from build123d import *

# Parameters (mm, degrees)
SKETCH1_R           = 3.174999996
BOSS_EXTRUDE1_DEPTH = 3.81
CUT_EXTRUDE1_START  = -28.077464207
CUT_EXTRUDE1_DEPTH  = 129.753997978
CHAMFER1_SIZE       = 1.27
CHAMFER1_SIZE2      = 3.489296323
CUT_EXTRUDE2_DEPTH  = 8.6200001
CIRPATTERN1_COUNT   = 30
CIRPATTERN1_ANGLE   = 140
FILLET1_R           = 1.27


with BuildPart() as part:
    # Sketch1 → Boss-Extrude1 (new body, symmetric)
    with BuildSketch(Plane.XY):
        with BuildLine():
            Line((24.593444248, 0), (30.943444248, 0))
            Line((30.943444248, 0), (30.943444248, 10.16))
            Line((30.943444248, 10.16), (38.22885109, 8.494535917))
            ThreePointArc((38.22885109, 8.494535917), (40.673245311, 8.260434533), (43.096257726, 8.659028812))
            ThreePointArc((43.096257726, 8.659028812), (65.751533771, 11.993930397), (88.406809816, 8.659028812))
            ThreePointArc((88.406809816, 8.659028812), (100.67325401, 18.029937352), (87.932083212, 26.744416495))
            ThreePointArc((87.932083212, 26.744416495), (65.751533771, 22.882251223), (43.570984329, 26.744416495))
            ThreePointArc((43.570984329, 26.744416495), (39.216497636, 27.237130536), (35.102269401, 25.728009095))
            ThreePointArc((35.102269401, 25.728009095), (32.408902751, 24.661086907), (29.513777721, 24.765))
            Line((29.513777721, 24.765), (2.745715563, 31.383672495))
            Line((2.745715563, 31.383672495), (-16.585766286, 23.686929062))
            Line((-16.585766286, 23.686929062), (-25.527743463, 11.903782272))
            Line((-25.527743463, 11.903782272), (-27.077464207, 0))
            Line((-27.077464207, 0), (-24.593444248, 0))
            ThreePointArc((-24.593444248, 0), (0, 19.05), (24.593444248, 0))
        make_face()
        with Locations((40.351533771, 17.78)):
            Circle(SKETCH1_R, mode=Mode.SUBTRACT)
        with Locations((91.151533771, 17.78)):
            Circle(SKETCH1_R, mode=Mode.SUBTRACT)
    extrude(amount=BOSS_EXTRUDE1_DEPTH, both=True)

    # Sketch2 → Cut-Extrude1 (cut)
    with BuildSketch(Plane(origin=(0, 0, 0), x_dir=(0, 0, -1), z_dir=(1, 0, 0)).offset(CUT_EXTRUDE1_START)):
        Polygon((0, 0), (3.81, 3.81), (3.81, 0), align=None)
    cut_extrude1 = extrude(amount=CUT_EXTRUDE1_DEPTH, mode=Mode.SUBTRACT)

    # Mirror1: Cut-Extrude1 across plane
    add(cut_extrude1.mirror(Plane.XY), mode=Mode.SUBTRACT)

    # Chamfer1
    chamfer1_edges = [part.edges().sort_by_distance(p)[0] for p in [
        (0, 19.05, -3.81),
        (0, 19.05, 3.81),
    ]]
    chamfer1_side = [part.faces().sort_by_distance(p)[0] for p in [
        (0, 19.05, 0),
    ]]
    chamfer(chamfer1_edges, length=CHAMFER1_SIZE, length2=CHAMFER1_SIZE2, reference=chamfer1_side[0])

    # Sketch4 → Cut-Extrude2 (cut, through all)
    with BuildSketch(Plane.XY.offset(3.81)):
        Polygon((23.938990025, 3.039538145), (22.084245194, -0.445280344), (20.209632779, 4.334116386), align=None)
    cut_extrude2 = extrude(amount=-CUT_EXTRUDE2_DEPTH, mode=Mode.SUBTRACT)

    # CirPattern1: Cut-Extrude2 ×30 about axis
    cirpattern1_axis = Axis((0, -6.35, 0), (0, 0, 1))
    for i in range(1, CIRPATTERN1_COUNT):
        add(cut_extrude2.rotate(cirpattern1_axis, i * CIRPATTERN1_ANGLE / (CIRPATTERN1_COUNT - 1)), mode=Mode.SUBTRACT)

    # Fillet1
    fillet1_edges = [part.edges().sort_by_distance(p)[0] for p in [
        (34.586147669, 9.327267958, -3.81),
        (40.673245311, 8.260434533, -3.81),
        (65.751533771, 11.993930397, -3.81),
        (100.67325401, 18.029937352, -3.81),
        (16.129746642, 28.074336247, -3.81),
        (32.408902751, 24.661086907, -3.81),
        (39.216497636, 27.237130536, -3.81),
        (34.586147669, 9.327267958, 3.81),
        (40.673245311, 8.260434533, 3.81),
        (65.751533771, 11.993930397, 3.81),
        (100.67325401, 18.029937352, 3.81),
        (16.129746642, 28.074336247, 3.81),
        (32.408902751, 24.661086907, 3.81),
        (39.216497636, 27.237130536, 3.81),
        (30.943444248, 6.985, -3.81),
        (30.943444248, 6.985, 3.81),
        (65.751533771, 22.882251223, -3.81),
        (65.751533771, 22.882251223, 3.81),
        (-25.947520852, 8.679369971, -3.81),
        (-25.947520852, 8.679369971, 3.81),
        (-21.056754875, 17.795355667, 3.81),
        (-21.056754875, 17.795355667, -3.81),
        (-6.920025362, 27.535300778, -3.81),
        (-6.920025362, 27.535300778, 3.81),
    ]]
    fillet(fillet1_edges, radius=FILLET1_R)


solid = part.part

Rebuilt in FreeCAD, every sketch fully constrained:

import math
import FreeCAD as App
import Part
import Sketcher

V = App.Vector
Q = App.Units.Quantity


def edges_at(feature, points):
    """Names of the edges that pass closest to the given points."""
    edges = feature.Shape.Edges
    near = lambda p: min(range(len(edges)), key=lambda i: edges[i].distToShape(Part.Vertex(*p))[0])
    return sorted({f"Edge{near(p) + 1}" for p in points})

doc = App.newDocument("Part")
params = doc.addObject("Spreadsheet::Sheet", "Params")
for row, (alias, value) in enumerate([
    ("sketch1_radius", "1 in"),
    ("sketch1_diameter", "0.25 in"),
    ("sketch1_height", "0.4 in"),
    ("sketch1_radius2", "0.375 in"),
    ("sketch1_width", "0.25 in"),
    ("pad1_length", "0.3 in"),
    ("sketch2_width", "0.15 in"),
    ("pocket1_length", "129.753998 mm"),
    ("chamfer_size", "0.05 in"),
    ("chamfer_size2", "3.489296 mm"),
    ("fillet_radius", "0.05 in"),
], start=1):
    params.set(f"A{row}", alias)
    params.set(f"B{row}", "=" + value)
    params.setAlias(f"B{row}", alias)

body = doc.addObject("PartDesign::Body", "Body")

# Sketch on XY plane
sketch1 = body.newObject("Sketcher::SketchObject", "Sketch")
sketch1.AttachmentSupport = (doc.getObject("XY_Plane"), [""])
sketch1.MapMode = "FlatFace"
sketch1.addGeometry([
    Part.LineSegment(V(24.593444, 0, 0), V(30.943444, 0, 0)),  # 0
    Part.LineSegment(V(30.943444, 0, 0), V(30.943444, 10.16, 0)),  # 1
    Part.LineSegment(V(30.943444, 10.16, 0), V(38.228851, 8.494536, 0)),  # 2
    Part.ArcOfCircle(Part.Circle(V(40.351534, 17.78, 0), V(0, 0, 1), 9.525), math.radians(-102.876707), math.radians(-73.25217)),  # 3
    Part.ArcOfCircle(Part.Circle(V(65.751534, -66.626546, 0), V(0, 0, 1), 78.620476), math.radians(73.25217), math.radians(106.74783)),  # 4
    Part.ArcOfCircle(Part.Circle(V(91.151534, 17.78, 0), V(0, 0, 1), 9.525), math.radians(-106.74783), math.radians(109.755074)),  # 5
    Part.ArcOfCircle(Part.Circle(V(65.751534, 88.505167, 0), V(0, 0, 1), 65.622916), math.radians(-109.755074), math.radians(-70.244926)),  # 6
    Part.ArcOfCircle(Part.Circle(V(40.351534, 17.78, 0), V(0, 0, 1), 9.525), math.radians(70.244926), math.radians(123.442776)),  # 7
    Part.ArcOfCircle(Part.Circle(V(31.209333, 31.622377, 0), V(0, 0, 1), 7.063889), math.radians(-103.888396), math.radians(-56.557224)),  # 8
    Part.LineSegment(V(29.513778, 24.765, 0), V(2.745716, 31.383672, 0)),  # 9
    Part.LineSegment(V(2.745716, 31.383672, 0), V(-16.585766, 23.686929, 0)),  # 10
    Part.LineSegment(V(-16.585766, 23.686929, 0), V(-25.527743, 11.903782, 0)),  # 11
    Part.LineSegment(V(-25.527743, 11.903782, 0), V(-27.077464, 0, 0)),  # 12
    Part.LineSegment(V(-27.077464, 0, 0), V(-24.593444, 0, 0)),  # 13
    Part.ArcOfCircle(Part.Circle(V(0, -6.35, 0), V(0, 0, 1), 25.4), math.radians(14.477512), math.radians(165.522488)),  # 14
    Part.Circle(V(40.351534, 17.78, 0), V(0, 0, 1), 3.175),  # 15
    Part.Circle(V(91.151534, 17.78, 0), V(0, 0, 1), 3.175),  # 16
], False)
sketch1.addConstraint([
    Sketcher.Constraint("Coincident", 0, 2, 1, 1),
    Sketcher.Constraint("Coincident", 1, 2, 2, 1),
    Sketcher.Constraint("Tangent", 2, 2, 3, 1),
    Sketcher.Constraint("Tangent", 3, 2, 4, 2),
    Sketcher.Constraint("Tangent", 4, 1, 5, 1),
    Sketcher.Constraint("Tangent", 5, 2, 6, 2),
    Sketcher.Constraint("Tangent", 6, 1, 7, 1),
    Sketcher.Constraint("Tangent", 7, 2, 8, 2),
    Sketcher.Constraint("Tangent", 8, 1, 9, 1),
    Sketcher.Constraint("Coincident", 9, 2, 10, 1),
    Sketcher.Constraint("Coincident", 10, 2, 11, 1),
    Sketcher.Constraint("Coincident", 11, 2, 12, 1),
    Sketcher.Constraint("Coincident", 12, 2, 13, 1),
    Sketcher.Constraint("Coincident", 13, 2, 14, 2),
    Sketcher.Constraint("Coincident", 14, 1, 0, 1),
    Sketcher.Constraint("Horizontal", 0),
    Sketcher.Constraint("Vertical", 1),
    Sketcher.Constraint("Horizontal", 13),
    Sketcher.Constraint("Coincident", 7, 3, 3, 3),
    Sketcher.Constraint("Coincident", 15, 3, 3, 3),
    Sketcher.Constraint("Coincident", 16, 3, 5, 3),
    Sketcher.Constraint("Equal", 3, 5),
    Sketcher.Constraint("Equal", 5, 7),
    Sketcher.Constraint("Equal", 15, 16),
    Sketcher.Constraint("Symmetric", 13, 2, 14, 1, -1, 1),
    Sketcher.Constraint("PointOnObject", 14, 3, -2),
    Sketcher.Constraint("Horizontal", 3, 3, 5, 3),
    Sketcher.Constraint("Radius", 14, Q("1 in")),
    Sketcher.Constraint("Diameter", 15, Q("0.25 in")),
    Sketcher.Constraint("DistanceY", 1, 1, 1, 2, Q("0.4 in")),
    Sketcher.Constraint("Radius", 3, Q("0.375 in")),
    Sketcher.Constraint("DistanceX", 3, 3, 4, 3, Q("1 in")),
    Sketcher.Constraint("DistanceX", 0, 1, 0, 2, Q("0.25 in")),
    Sketcher.Constraint("DistanceY", -1, 1, 3, 3, Q("0.7 in")),
    Sketcher.Constraint("DistanceY", 14, 3, -1, 1, Q("0.25 in")),
    Sketcher.Constraint("DistanceY", -1, 1, 8, 1, Q("0.975 in")),
    Sketcher.Constraint("Radius", 8, 7.063889),
    Sketcher.Constraint("Radius", 4, 78.620476),
    Sketcher.Constraint("Radius", 6, 65.622916),
    Sketcher.Constraint("DistanceX", 13, 1, 13, 2, 2.48402),
    Sketcher.Constraint("DistanceX", 8, 3, 3, 3, 9.142201),
    Sketcher.Constraint("DistanceX", 10, 2, 8, 3, 47.795099),
    Sketcher.Constraint("DistanceX", 11, 2, 13, 2, 0.934299),
    Sketcher.Constraint("Distance", 9, 27.57419),
    Sketcher.Constraint("Distance", 11, 14.791941),
    Sketcher.Constraint("DistanceX", -1, 1, 2, 2, 38.228851),
    Sketcher.Constraint("DistanceY", -1, 1, 10, 2, 23.686929),
])
sketch1.setExpression("Constraints[27]", "Params.sketch1_radius")
sketch1.setExpression("Constraints[28]", "Params.sketch1_diameter")
sketch1.setExpression("Constraints[29]", "Params.sketch1_height")
sketch1.setExpression("Constraints[30]", "Params.sketch1_radius2")
sketch1.setExpression("Constraints[32]", "Params.sketch1_width")
pad1 = body.newObject("PartDesign::Pad", "Pad")
pad1.Profile = sketch1
pad1.setExpression("Length", "Params.pad1_length")
pad1.Midplane = True

# Sketch on YZ plane
sketch2 = body.newObject("Sketcher::SketchObject", "Sketch001")
sketch2.AttachmentSupport = (doc.getObject("YZ_Plane"), [""])
sketch2.MapMode = "FlatFace"
sketch2.AttachmentOffset = App.Placement(V(0, 0, -28.077464), App.Rotation())
sketch2.addGeometry([
    Part.LineSegment(V(3.81, -3.81, 0), V(0, 0, 0)),
    Part.LineSegment(V(0, 0, 0), V(0, -3.81, 0)),
    Part.LineSegment(V(0, -3.81, 0), V(3.81, -3.81, 0)),
], False)
sketch2.addConstraint([
    Sketcher.Constraint("Coincident", 0, 2, 1, 1),
    Sketcher.Constraint("Coincident", 1, 2, 2, 1),
    Sketcher.Constraint("Coincident", 2, 2, 0, 1),
    Sketcher.Constraint("Vertical", 1),
    Sketcher.Constraint("Horizontal", 2),
    Sketcher.Constraint("Coincident", 0, 2, -1, 1),
    Sketcher.Constraint("Equal", 2, 1),
    Sketcher.Constraint("DistanceX", 2, 1, 2, 2, Q("0.15 in")),
])
sketch2.setExpression("Constraints[7]", "Params.sketch2_width")
pocket1 = body.newObject("PartDesign::Pocket", "Pocket")
pocket1.Profile = sketch2
pocket1.setExpression("Length", "Params.pocket1_length")
pocket1.Reversed = True
doc.recompute()

mirrored = body.newObject("PartDesign::Mirrored", "Mirrored")
mirrored.Originals = [pocket1]
mirrored.MirrorPlane = (doc.getObject("XY_Plane"), [""])
body.Tip = mirrored
doc.recompute()

chamfer = body.newObject("PartDesign::Chamfer", "Chamfer")
chamfer.Base = (mirrored, edges_at(mirrored, [(0, 19.05, -3.81), (0, 19.05, 3.81)]))
chamfer.ChamferType = "Two distances"
chamfer.setExpression("Size", "Params.chamfer_size")
chamfer.setExpression("Size2", "Params.chamfer_size2")

# Sketch on XY plane
sketch3 = body.newObject("Sketcher::SketchObject", "Sketch002")
sketch3.AttachmentSupport = (doc.getObject("XY_Plane"), [""])
sketch3.MapMode = "FlatFace"
sketch3.AttachmentOffset = App.Placement(V(0, 0, 0.15 * 25.4), App.Rotation())
sketch3.addGeometry([
    Part.LineSegment(V(22.084245, -0.44528, 0), V(23.93899, 3.039538, 0)),
    Part.LineSegment(V(23.93899, 3.039538, 0), V(20.209633, 4.334116, 0)),
    Part.LineSegment(V(20.209633, 4.334116, 0), V(22.084245, -0.44528, 0)),
], False)
sketch3.addConstraint([
    Sketcher.Constraint("Coincident", 0, 2, 1, 1),
    Sketcher.Constraint("Coincident", 1, 2, 2, 1),
    Sketcher.Constraint("Coincident", 2, 2, 0, 1),
    Sketcher.Constraint("Equal", 0, 1),
    Sketcher.Constraint("DistanceX", -1, 1, 0, 2, 23.93899),
    Sketcher.Constraint("DistanceY", -1, 1, 0, 2, 3.039538),
    Sketcher.Constraint("DistanceY", 2, 2, -1, 1, 0.44528),
    Sketcher.Constraint("DistanceY", 0, 2, 1, 2, 1.294578),
    Sketcher.Constraint("Distance", 0, 3.947662),
])
pocket2 = body.newObject("PartDesign::Pocket", "Pocket001")
pocket2.Profile = sketch3
pocket2.Type = "ThroughAll"
doc.recompute()

datumline = body.newObject("PartDesign::Line", "DatumLine")
datumline.Placement = App.Placement(V(0, -6.35, 0), App.Rotation(V(0, 0, 1), V(0, 0, 1)))
polarpattern = body.newObject("PartDesign::PolarPattern", "PolarPattern")
polarpattern.Originals = [pocket2]
polarpattern.Axis = (datumline, [""])
polarpattern.Angle = 140
polarpattern.Occurrences = 30
body.Tip = polarpattern
doc.recompute()

fillet = body.newObject("PartDesign::Fillet", "Fillet")
fillet.Base = (polarpattern, edges_at(polarpattern, [
    (34.586, 9.327, -3.81),
    (40.673, 8.26, -3.81),
    (65.752, 11.994, -3.81),
    (100.673, 18.03, -3.81),
    (16.13, 28.074, -3.81),
    (32.409, 24.661, -3.81),
    (39.216, 27.237, -3.81),
    (34.586, 9.327, 3.81),
    (40.673, 8.26, 3.81),
    (65.752, 11.994, 3.81),
    (100.673, 18.03, 3.81),
    (16.13, 28.074, 3.81),
    (32.409, 24.661, 3.81),
    (39.216, 27.237, 3.81),
    (30.943, 6.985, -3.81),
    (30.943, 6.985, 3.81),
    (65.752, 22.882, -3.81),
    (65.752, 22.882, 3.81),
    (-25.948, 8.679, -3.81),
    (-25.948, 8.679, 3.81),
    (-21.057, 17.795, 3.81),
    (-21.057, 17.795, -3.81),
    (-6.92, 27.535, -3.81),
    (-6.92, 27.535, 3.81),
]))
fillet.setExpression("Radius", "Params.fillet_radius")

doc.recompute()
